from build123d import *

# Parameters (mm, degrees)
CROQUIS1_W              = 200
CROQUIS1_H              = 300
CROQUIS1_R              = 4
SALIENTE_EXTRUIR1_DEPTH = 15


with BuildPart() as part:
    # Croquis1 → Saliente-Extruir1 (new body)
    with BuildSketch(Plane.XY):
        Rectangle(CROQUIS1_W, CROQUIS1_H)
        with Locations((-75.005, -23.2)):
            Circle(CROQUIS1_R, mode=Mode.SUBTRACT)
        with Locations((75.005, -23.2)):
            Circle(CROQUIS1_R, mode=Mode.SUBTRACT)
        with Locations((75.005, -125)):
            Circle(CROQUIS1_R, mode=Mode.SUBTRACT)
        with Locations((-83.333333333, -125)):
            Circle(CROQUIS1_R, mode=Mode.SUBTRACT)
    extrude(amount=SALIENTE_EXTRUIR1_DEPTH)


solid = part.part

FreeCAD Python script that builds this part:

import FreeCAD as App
import Part
import Sketcher

V = App.Vector
Q = App.Units.Quantity

doc = App.newDocument("Part")
body = doc.addObject("PartDesign::Body", "Body")

# Sketch on XY plane
sketch1 = doc.addObject("Sketcher::SketchObject", "Sketch")
body.addObject(sketch1)
sketch1.AttachmentSupport = (doc.XY_Plane, [""])
sketch1.MapMode = "FlatFace"
sketch1.addGeometry(Part.LineSegment(V(-100, 150, 0), V(-100, -150, 0)), False)
sketch1.addGeometry(Part.LineSegment(V(-100, -150, 0), V(100, -150, 0)), False)
sketch1.addGeometry(Part.LineSegment(V(100, -150, 0), V(100, 150, 0)), False)
sketch1.addGeometry(Part.LineSegment(V(100, 150, 0), V(-100, 150, 0)), False)
sketch1.addGeometry(Part.Circle(V(-83.3, -125, 0), V(0, 0, 1), 4), False)
sketch1.addGeometry(Part.Circle(V(75, -125, 0), V(0, 0, 1), 4), False)
sketch1.addGeometry(Part.Circle(V(-75, -23.2, 0), V(0, 0, 1), 4), False)
sketch1.addGeometry(Part.Circle(V(75, -23.2, 0), V(0, 0, 1), 4), False)
sketch1.addConstraint(Sketcher.Constraint("Coincident", 0, 2, 1, 1))
sketch1.addConstraint(Sketcher.Constraint("Coincident", 1, 2, 2, 1))
sketch1.addConstraint(Sketcher.Constraint("Coincident", 2, 2, 3, 1))
sketch1.addConstraint(Sketcher.Constraint("Coincident", 3, 2, 0, 1))
sketch1.addConstraint(Sketcher.Constraint("Vertical", 0))
sketch1.addConstraint(Sketcher.Constraint("Horizontal", 1))
sketch1.addConstraint(Sketcher.Constraint("Vertical", 2))
sketch1.addConstraint(Sketcher.Constraint("Horizontal", 3))
sketch1.addConstraint(Sketcher.Constraint("Equal", 4, 5))
sketch1.addConstraint(Sketcher.Constraint("Equal", 5, 6))
sketch1.addConstraint(Sketcher.Constraint("Equal", 6, 7))
sketch1.addConstraint(Sketcher.Constraint("Symmetric", 0, 2, 2, 2, -1, 1))
sketch1.addConstraint(Sketcher.Constraint("Symmetric", 6, 3, 7, 3, -2))
sketch1.addConstraint(Sketcher.Constraint("Horizontal", 4, 3, 5, 3))
sketch1.addConstraint(Sketcher.Constraint("Vertical", 5, 3, 7, 3))
sketch1.addConstraint(Sketcher.Constraint("Diameter", 4, Q("8 mm")))
sketch1.addConstraint(Sketcher.Constraint("DistanceX", 1, 1, 1, 2, Q("200 mm")))
sketch1.addConstraint(Sketcher.Constraint("DistanceY", 0, 2, 0, 1, Q("300 mm")))
sketch1.addConstraint(Sketcher.Constraint("DistanceY", 4, 3, -1, 1, Q("125 mm")))
sketch1.addConstraint(Sketcher.Constraint("DistanceY", 6, 3, -1, 1, Q("23.2 mm")))
sketch1.addConstraint(Sketcher.Constraint("DistanceX", 6, 3, 5, 3, Q("150.01 mm")))
sketch1.addConstraint(Sketcher.Constraint("DistanceX", 4, 3, -1, 1, Q("83.333333 mm")))
pad1 = doc.addObject("PartDesign::Pad", "Pad")
body.addObject(pad1)
pad1.Profile = sketch1
pad1.Length = 15

doc.recompute()
